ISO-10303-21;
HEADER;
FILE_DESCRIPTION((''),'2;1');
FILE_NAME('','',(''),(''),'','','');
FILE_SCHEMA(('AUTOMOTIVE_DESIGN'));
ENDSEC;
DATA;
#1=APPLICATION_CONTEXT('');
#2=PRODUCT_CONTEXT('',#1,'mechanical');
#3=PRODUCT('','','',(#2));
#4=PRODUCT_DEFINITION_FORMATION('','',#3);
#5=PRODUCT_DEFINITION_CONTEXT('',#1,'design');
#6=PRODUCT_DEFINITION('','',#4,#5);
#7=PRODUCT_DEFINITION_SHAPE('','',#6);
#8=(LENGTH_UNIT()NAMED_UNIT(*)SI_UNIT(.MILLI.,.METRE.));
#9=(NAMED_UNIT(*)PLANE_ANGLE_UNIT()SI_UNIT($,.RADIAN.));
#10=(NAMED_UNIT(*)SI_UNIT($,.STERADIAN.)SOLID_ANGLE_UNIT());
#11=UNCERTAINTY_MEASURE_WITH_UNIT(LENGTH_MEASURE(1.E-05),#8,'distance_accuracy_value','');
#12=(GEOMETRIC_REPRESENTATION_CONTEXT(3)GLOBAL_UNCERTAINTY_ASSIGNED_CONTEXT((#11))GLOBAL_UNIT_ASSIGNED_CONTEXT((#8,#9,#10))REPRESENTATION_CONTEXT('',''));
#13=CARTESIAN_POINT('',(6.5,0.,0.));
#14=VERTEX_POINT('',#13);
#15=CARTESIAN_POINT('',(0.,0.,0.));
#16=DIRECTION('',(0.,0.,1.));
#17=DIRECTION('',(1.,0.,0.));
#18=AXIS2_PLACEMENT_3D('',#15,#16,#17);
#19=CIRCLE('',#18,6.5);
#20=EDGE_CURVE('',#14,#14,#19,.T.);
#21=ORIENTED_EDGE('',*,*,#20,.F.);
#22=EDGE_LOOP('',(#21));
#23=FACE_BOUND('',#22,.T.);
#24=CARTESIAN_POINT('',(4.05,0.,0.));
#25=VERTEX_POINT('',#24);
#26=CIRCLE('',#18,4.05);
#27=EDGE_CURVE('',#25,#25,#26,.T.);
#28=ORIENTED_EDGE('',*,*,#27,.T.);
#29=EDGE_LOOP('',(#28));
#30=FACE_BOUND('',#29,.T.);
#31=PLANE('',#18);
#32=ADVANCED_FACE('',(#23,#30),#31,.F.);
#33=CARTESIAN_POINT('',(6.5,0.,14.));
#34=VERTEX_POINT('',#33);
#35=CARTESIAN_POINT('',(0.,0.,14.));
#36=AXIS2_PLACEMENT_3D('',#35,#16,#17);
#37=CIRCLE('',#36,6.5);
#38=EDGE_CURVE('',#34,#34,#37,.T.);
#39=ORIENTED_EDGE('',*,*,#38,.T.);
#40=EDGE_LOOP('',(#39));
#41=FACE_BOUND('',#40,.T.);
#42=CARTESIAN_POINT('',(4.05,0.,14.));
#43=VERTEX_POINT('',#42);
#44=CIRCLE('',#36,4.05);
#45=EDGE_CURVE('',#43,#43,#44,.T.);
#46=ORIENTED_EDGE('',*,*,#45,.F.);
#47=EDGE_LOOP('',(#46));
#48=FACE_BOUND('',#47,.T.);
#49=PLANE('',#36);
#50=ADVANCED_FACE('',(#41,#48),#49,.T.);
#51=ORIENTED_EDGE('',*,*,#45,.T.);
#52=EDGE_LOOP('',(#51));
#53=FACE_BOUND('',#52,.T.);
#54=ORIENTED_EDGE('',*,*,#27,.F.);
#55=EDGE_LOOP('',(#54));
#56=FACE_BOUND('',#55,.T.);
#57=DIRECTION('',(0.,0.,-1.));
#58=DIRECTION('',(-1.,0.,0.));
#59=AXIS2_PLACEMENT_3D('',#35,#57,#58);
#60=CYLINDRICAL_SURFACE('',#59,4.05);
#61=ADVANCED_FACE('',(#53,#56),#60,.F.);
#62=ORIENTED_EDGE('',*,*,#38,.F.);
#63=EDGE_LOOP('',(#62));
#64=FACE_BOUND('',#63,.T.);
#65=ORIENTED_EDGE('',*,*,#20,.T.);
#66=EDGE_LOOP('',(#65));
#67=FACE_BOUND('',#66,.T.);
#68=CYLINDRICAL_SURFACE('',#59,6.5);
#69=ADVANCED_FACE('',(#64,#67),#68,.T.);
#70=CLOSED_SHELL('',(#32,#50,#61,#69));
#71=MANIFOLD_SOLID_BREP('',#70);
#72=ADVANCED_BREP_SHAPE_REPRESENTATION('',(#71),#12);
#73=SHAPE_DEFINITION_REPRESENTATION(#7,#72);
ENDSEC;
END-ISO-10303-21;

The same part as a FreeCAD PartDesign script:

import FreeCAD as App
import Part
import Sketcher
Q = App.Units.Quantity

doc = App.newDocument("Part")
body = doc.addObject("PartDesign::Body", "Body")

# Sketch on XY plane
sketch1 = body.newObject("Sketcher::SketchObject", "Sketch")
sketch1.AttachmentSupport = (doc.getObject("XY_Plane"), [""])
sketch1.MapMode = "FlatFace"
sketch1.addGeometry(Part.Circle(App.Vector(0, 0, 0), App.Vector(0, 0, 1), 6.5), False)
sketch1.addGeometry(Part.Circle(App.Vector(0, 0, 0), App.Vector(0, 0, 1), 4), False)
sketch1.addConstraint(Sketcher.Constraint("Coincident", 0, 3, -1, 1))
sketch1.addConstraint(Sketcher.Constraint("Coincident", 1, 3, -1, 1))
sketch1.addConstraint(Sketcher.Constraint("Diameter", 0, Q("13 mm")))
sketch1.addConstraint(Sketcher.Constraint("Diameter", 1, Q("8.1 mm")))
pad1 = body.newObject("PartDesign::Pad", "Pad")
pad1.Profile = sketch1
pad1.Length = 14

doc.recompute()
